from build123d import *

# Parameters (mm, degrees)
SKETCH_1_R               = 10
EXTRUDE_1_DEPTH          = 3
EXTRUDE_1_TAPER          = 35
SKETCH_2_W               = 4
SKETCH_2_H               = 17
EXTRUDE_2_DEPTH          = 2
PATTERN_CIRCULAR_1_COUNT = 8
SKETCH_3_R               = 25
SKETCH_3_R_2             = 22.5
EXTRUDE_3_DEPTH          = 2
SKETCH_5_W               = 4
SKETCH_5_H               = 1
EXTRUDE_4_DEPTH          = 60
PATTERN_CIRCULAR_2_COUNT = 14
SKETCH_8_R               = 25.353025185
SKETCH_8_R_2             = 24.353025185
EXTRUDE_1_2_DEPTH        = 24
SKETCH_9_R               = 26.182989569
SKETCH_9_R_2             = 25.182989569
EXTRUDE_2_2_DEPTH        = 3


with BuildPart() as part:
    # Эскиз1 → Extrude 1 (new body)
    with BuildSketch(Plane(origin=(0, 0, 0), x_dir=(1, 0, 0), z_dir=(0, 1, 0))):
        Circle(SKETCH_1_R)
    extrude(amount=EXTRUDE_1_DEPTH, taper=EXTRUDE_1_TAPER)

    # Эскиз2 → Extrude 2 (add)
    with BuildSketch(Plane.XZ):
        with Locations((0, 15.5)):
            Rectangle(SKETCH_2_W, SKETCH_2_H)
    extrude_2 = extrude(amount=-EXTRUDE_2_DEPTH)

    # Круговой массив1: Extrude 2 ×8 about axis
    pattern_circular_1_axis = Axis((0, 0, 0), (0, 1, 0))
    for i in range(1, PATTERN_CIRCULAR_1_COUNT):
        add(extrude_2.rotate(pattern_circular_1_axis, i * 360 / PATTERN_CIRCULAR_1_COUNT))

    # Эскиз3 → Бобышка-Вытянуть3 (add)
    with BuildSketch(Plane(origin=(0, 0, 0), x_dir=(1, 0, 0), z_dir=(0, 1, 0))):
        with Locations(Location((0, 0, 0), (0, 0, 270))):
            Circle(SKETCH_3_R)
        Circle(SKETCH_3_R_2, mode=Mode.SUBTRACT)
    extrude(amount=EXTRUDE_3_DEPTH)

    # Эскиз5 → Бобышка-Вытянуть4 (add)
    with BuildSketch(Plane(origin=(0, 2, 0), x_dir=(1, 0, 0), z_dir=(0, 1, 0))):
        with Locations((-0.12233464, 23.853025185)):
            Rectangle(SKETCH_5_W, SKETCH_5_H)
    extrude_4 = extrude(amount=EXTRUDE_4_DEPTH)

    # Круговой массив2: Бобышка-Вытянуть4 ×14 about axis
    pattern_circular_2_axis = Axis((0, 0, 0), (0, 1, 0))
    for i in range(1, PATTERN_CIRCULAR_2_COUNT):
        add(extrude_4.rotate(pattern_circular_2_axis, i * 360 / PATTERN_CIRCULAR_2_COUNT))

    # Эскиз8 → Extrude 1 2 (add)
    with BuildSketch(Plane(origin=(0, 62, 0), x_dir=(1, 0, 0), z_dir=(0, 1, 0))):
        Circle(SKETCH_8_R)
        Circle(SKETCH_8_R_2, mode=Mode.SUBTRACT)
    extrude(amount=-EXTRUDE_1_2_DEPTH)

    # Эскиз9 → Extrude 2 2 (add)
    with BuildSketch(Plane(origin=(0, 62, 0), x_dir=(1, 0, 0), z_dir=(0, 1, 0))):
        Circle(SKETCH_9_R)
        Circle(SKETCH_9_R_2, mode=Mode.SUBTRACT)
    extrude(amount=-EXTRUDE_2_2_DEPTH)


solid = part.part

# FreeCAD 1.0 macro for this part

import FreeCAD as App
import Part
import Sketcher
from FreeCAD import Vector
Q = App.Units.Quantity


def add_polygon(sketch, points):
    """Adds a closed chain of lines whose ends are joined by coincident constraints."""
    first, n = sketch.GeometryCount, len(points)
    for a, b in zip(points, points[1:] + points[:1]):
        sketch.addGeometry(Part.LineSegment(App.Vector(*a, 0), App.Vector(*b, 0)), False)
    for i in range(n):
        sketch.addConstraint(Sketcher.Constraint("Coincident", first + i, 2, first + (i + 1) % n, 1))

doc = App.newDocument("Part")
params = doc.addObject("Spreadsheet::Sheet", "Params")
for row, (alias, value) in enumerate([
    ("sketch1_diameter", "20 mm"),
    ("pad1_length", "3 mm"),
    ("pad1_taper", "-35 deg"),
    ("sketch2_width", "4 mm"),
    ("sketch2_height", "17 mm"),
    ("pad2_length", "2 mm"),
    ("sketch3_diameter", "50 mm"),
    ("sketch3_diameter2", "45 mm"),
    ("pad3_length", "2 mm"),
    ("sketch4_width", "4 mm"),
    ("sketch4_height", "1 mm"),
    ("pad4_length", "60 mm"),
    ("pad5_length", "24 mm"),
    ("pad6_length", "3 mm"),
], start=1):
    params.set(f"A{row}", alias)
    params.set(f"B{row}", "=" + value)
    params.setAlias(f"B{row}", alias)

body = doc.addObject("PartDesign::Body", "Body")

# Sketch on XZ plane
sketch1 = body.newObject("Sketcher::SketchObject", "Sketch")
sketch1.AttachmentSupport = (doc.getObject("XZ_Plane"), [""])
sketch1.MapMode = "FlatFace"
sketch1.addGeometry(Part.Circle(Vector(0, 0, 0), Vector(0, 0, 1), 10), False)
sketch1.addConstraint(Sketcher.Constraint("Coincident", 0, 3, -1, 1))
sketch1.addConstraint(Sketcher.Constraint("Diameter", 0, Q("20 mm")))
sketch1.setExpression("Constraints[1]", "Params.sketch1_diameter")
pad1 = body.newObject("PartDesign::Pad", "Pad")
pad1.Profile = sketch1
pad1.setExpression("Length", "Params.pad1_length")
pad1.Reversed = True
pad1.setExpression("TaperAngle", "Params.pad1_taper")

# Sketch on XZ plane
sketch2 = body.newObject("Sketcher::SketchObject", "Sketch001")
sketch2.AttachmentSupport = (doc.getObject("XZ_Plane"), [""])
sketch2.MapMode = "FlatFace"
add_polygon(sketch2, [(-2, 24), (-2, 7), (2, 7), (2, 24)])  # lines 0-3
sketch2.addConstraint(Sketcher.Constraint("Vertical", 0))
sketch2.addConstraint(Sketcher.Constraint("Horizontal", 1))
sketch2.addConstraint(Sketcher.Constraint("Vertical", 2))
sketch2.addConstraint(Sketcher.Constraint("Horizontal", 3))
sketch2.addConstraint(Sketcher.Constraint("DistanceX", 1, 1, 1, 2, Q("4 mm")))
sketch2.addConstraint(Sketcher.Constraint("DistanceY", 0, 2, 0, 1, Q("17 mm")))
sketch2.addConstraint(Sketcher.Constraint("DistanceX", 0, 2, -1, 1, Q("2 mm")))
sketch2.addConstraint(Sketcher.Constraint("DistanceY", -1, 1, 0, 2, Q("7 mm")))
sketch2.setExpression("Constraints[8]", "Params.sketch2_width")
sketch2.setExpression("Constraints[9]", "Params.sketch2_height")
pad2 = body.newObject("PartDesign::Pad", "Pad001")
pad2.Profile = sketch2
pad2.setExpression("Length", "Params.pad2_length")
pad2.Reversed = True
doc.recompute()

polarpattern = body.newObject("PartDesign::PolarPattern", "PolarPattern")
polarpattern.Originals = [pad2]
polarpattern.Axis = (doc.getObject("Y_Axis"), [""])
polarpattern.Angle = 360
polarpattern.Occurrences = 8
body.Tip = polarpattern

# Sketch on XZ plane
sketch3 = body.newObject("Sketcher::SketchObject", "Sketch002")
sketch3.AttachmentSupport = (doc.getObject("XZ_Plane"), [""])
sketch3.MapMode = "FlatFace"
sketch3.addGeometry(Part.Circle(Vector(0, 0, 0), Vector(0, 0, 1), 25), False)
sketch3.addGeometry(Part.Circle(Vector(0, 0, 0), Vector(0, 0, 1), 22), False)
sketch3.addConstraint(Sketcher.Constraint("Coincident", 0, 3, -1, 1))
sketch3.addConstraint(Sketcher.Constraint("Coincident", 1, 3, -1, 1))
sketch3.addConstraint(Sketcher.Constraint("Diameter", 0, Q("50 mm")))
sketch3.addConstraint(Sketcher.Constraint("Diameter", 1, Q("45 mm")))
sketch3.setExpression("Constraints[2]", "Params.sketch3_diameter")
sketch3.setExpression("Constraints[3]", "Params.sketch3_diameter2")
pad3 = body.newObject("PartDesign::Pad", "Pad002")
pad3.Profile = sketch3
pad3.setExpression("Length", "Params.pad3_length")
pad3.Reversed = True

# Sketch on XZ plane
sketch4 = body.newObject("Sketcher::SketchObject", "Sketch003")
sketch4.AttachmentSupport = (doc.getObject("XZ_Plane"), [""])
sketch4.MapMode = "FlatFace"
sketch4.AttachmentOffset = App.Placement(Vector(0, 0, -2), App.Rotation())
add_polygon(sketch4, [(-2.1, -24.4), (-2.1, -23.4), (1.9, -23.4), (1.9, -24.4)])  # lines 0-3
sketch4.addConstraint(Sketcher.Constraint("Vertical", 0))
sketch4.addConstraint(Sketcher.Constraint("Horizontal", 1))
sketch4.addConstraint(Sketcher.Constraint("Vertical", 2))
sketch4.addConstraint(Sketcher.Constraint("Horizontal", 3))
sketch4.addConstraint(Sketcher.Constraint("DistanceX", 1, 1, 1, 2, Q("4 mm")))
sketch4.addConstraint(Sketcher.Constraint("DistanceY", 0, 1, 0, 2, Q("1 mm")))
sketch4.addConstraint(Sketcher.Constraint("DistanceX", 0, 2, -1, 1, Q("2.122335 mm")))
sketch4.addConstraint(Sketcher.Constraint("DistanceY", 0, 2, -1, 1, Q("23.353025 mm")))
sketch4.setExpression("Constraints[8]", "Params.sketch4_width")
sketch4.setExpression("Constraints[9]", "Params.sketch4_height")
pad4 = body.newObject("PartDesign::Pad", "Pad003")
pad4.Profile = sketch4
pad4.setExpression("Length", "Params.pad4_length")
pad4.Reversed = True
doc.recompute()

polarpattern2 = body.newObject("PartDesign::PolarPattern", "PolarPattern001")
polarpattern2.Originals = [pad4]
polarpattern2.Axis = (doc.getObject("Y_Axis"), [""])
polarpattern2.Angle = 360
polarpattern2.Occurrences = 14
body.Tip = polarpattern2

# Sketch on XZ plane
sketch5 = body.newObject("Sketcher::SketchObject", "Sketch004")
sketch5.AttachmentSupport = (doc.getObject("XZ_Plane"), [""])
sketch5.MapMode = "FlatFace"
sketch5.AttachmentOffset = App.Placement(Vector(0, 0, -62), App.Rotation())
sketch5.addGeometry(Part.Circle(Vector(0, 0, 0), Vector(0, 0, 1), 25), False)
sketch5.addGeometry(Part.Circle(Vector(0, 0, 0), Vector(0, 0, 1), 24), False)
sketch5.addConstraint(Sketcher.Constraint("Coincident", 0, 3, -1, 1))
sketch5.addConstraint(Sketcher.Constraint("Coincident", 1, 3, -1, 1))
sketch5.addConstraint(Sketcher.Constraint("Diameter", 0, Q("50.70605 mm")))
sketch5.addConstraint(Sketcher.Constraint("Diameter", 1, Q("48.70605 mm")))
pad5 = body.newObject("PartDesign::Pad", "Pad004")
pad5.Profile = sketch5
pad5.setExpression("Length", "Params.pad5_length")

# Sketch on XZ plane
sketch6 = body.newObject("Sketcher::SketchObject", "Sketch005")
sketch6.AttachmentSupport = (doc.getObject("XZ_Plane"), [""])
sketch6.MapMode = "FlatFace"
sketch6.AttachmentOffset = App.Placement(Vector(0, 0, -62), App.Rotation())
sketch6.addGeometry(Part.Circle(Vector(0, 0, 0), Vector(0, 0, 1), 26), False)
sketch6.addGeometry(Part.Circle(Vector(0, 0, 0), Vector(0, 0, 1), 25), False)
sketch6.addConstraint(Sketcher.Constraint("Coincident", 0, 3, -1, 1))
sketch6.addConstraint(Sketcher.Constraint("Coincident", 1, 3, -1, 1))
sketch6.addConstraint(Sketcher.Constraint("Diameter", 0, Q("52.365979 mm")))
sketch6.addConstraint(Sketcher.Constraint("Diameter", 1, Q("50.365979 mm")))
pad6 = body.newObject("PartDesign::Pad", "Pad005")
pad6.Profile = sketch6
pad6.setExpression("Length", "Params.pad6_length")

doc.recompute()
